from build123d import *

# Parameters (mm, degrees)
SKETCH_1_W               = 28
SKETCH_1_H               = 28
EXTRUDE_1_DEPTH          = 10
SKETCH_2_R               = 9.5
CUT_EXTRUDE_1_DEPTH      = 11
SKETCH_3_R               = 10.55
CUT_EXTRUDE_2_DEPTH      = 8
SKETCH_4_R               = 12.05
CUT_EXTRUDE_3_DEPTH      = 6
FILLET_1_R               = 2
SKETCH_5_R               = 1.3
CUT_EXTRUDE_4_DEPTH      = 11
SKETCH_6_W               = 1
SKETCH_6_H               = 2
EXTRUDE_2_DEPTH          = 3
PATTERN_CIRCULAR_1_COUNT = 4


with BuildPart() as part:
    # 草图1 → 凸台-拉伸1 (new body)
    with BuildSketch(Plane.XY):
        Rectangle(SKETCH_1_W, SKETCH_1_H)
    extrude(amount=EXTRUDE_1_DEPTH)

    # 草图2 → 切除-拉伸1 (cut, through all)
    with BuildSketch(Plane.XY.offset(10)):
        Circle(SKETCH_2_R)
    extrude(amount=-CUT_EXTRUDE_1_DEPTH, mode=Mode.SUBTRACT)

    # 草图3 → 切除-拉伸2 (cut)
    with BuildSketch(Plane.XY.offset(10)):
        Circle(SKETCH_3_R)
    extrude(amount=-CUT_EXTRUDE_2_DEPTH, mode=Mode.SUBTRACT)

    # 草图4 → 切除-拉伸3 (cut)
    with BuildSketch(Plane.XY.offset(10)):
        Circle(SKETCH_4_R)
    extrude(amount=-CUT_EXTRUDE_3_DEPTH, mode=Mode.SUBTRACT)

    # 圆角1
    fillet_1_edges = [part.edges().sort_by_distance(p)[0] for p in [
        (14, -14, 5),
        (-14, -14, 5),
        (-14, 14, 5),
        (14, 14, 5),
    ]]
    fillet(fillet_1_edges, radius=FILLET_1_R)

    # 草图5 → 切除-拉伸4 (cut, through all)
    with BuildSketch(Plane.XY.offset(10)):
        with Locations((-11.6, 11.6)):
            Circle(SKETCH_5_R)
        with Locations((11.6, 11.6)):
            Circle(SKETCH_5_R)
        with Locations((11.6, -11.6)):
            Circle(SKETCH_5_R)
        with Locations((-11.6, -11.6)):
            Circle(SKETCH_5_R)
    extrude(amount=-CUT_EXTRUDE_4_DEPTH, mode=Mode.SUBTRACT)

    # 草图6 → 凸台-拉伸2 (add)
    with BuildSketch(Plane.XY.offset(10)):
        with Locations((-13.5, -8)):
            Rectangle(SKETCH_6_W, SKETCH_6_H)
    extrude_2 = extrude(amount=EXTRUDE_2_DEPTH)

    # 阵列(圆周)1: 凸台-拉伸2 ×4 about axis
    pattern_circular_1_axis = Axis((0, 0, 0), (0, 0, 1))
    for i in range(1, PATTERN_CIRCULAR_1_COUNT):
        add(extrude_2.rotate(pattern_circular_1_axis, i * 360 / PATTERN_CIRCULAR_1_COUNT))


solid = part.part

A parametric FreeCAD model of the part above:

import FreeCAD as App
import Part
import Sketcher
from FreeCAD import Vector
Q = App.Units.Quantity


def edges_at(feature, points):
    """Names of the edges that pass closest to the given points."""
    edges = feature.Shape.Edges
    near = lambda p: min(range(len(edges)), key=lambda i: edges[i].distToShape(Part.Vertex(*p))[0])
    return sorted({f"Edge{near(p) + 1}" for p in points})

doc = App.newDocument("Part")
body = doc.addObject("PartDesign::Body", "Body")

sketch1 = body.newObject("Sketcher::SketchObject", "Sketch")
sketch1.AttachmentSupport = (doc.getObject("XY_Plane"), [""])
sketch1.MapMode = "FlatFace"
sketch1.addGeometry([
    Part.LineSegment(Vector(-14, 14, 0), Vector(-14, -14, 0)),
    Part.LineSegment(Vector(-14, -14, 0), Vector(14, -14, 0)),
    Part.LineSegment(Vector(14, -14, 0), Vector(14, 14, 0)),
    Part.LineSegment(Vector(14, 14, 0), Vector(-14, 14, 0)),
], False)
sketch1.addConstraint([
    Sketcher.Constraint("Coincident", 0, 2, 1, 1),
    Sketcher.Constraint("Coincident", 1, 2, 2, 1),
    Sketcher.Constraint("Coincident", 2, 2, 3, 1),
    Sketcher.Constraint("Coincident", 3, 2, 0, 1),
    Sketcher.Constraint("Vertical", 0),
    Sketcher.Constraint("Horizontal", 1),
    Sketcher.Constraint("Vertical", 2),
    Sketcher.Constraint("Horizontal", 3),
    Sketcher.Constraint("Symmetric", 0, 2, 2, 2, -1, 1),
    Sketcher.Constraint("Equal", 3, 0),
    Sketcher.Constraint("DistanceX", 1, 1, 1, 2, Q("28 mm")),
])
pad1 = body.newObject("PartDesign::Pad", "Pad")
pad1.Profile = sketch1
pad1.Length = 10

sketch2 = body.newObject("Sketcher::SketchObject", "Sketch001")
sketch2.AttachmentSupport = (doc.getObject("XY_Plane"), [""])
sketch2.MapMode = "FlatFace"
sketch2.AttachmentOffset = App.Placement(Vector(0, 0, 10), App.Rotation())
sketch2.addGeometry(Part.Circle(Vector(0, 0, 0), Vector(0, 0, 1), 10), False)
sketch2.addConstraint([
    Sketcher.Constraint("Coincident", 0, 3, -1, 1),
    Sketcher.Constraint("Diameter", 0, Q("19 mm")),
])
pocket1 = body.newObject("PartDesign::Pocket", "Pocket")
pocket1.Profile = sketch2
pocket1.Type = "ThroughAll"

sketch3 = body.newObject("Sketcher::SketchObject", "Sketch002")
sketch3.AttachmentSupport = (doc.getObject("XY_Plane"), [""])
sketch3.MapMode = "FlatFace"
sketch3.AttachmentOffset = App.Placement(Vector(0, 0, 10), App.Rotation())
sketch3.addGeometry(Part.Circle(Vector(0, 0, 0), Vector(0, 0, 1), 11), False)
sketch3.addConstraint([
    Sketcher.Constraint("Coincident", 0, 3, -1, 1),
    Sketcher.Constraint("Diameter", 0, Q("21.1 mm")),
])
pocket2 = body.newObject("PartDesign::Pocket", "Pocket001")
pocket2.Profile = sketch3
pocket2.Length = 8

sketch4 = body.newObject("Sketcher::SketchObject", "Sketch003")
sketch4.AttachmentSupport = (doc.getObject("XY_Plane"), [""])
sketch4.MapMode = "FlatFace"
sketch4.AttachmentOffset = App.Placement(Vector(0, 0, 10), App.Rotation())
sketch4.addGeometry(Part.Circle(Vector(0, 0, 0), Vector(0, 0, 1), 12), False)
sketch4.addConstraint([
    Sketcher.Constraint("Coincident", 0, 3, -1, 1),
    Sketcher.Constraint("Diameter", 0, Q("24.1 mm")),
])
pocket3 = body.newObject("PartDesign::Pocket", "Pocket002")
pocket3.Profile = sketch4
pocket3.Length = 6
doc.recompute()

fillet = body.newObject("PartDesign::Fillet", "Fillet")
fillet.Base = (pocket3, edges_at(pocket3, [
    (14, -14, 5),
    (-14, -14, 5),
    (-14, 14, 5),
    (14, 14, 5),
]))
fillet.Radius = 2

sketch5 = body.newObject("Sketcher::SketchObject", "Sketch004")
sketch5.AttachmentSupport = (doc.getObject("XY_Plane"), [""])
sketch5.MapMode = "FlatFace"
sketch5.AttachmentOffset = App.Placement(Vector(0, 0, 10), App.Rotation())
sketch5.addGeometry([
    Part.Circle(Vector(-11.6, 11.6, 0), Vector(0, 0, 1), 1.3),
    Part.Circle(Vector(11.6, 11.6, 0), Vector(0, 0, 1), 1.3),
    Part.Circle(Vector(11.6, -11.6, 0), Vector(0, 0, 1), 1.3),
    Part.Circle(Vector(-11.6, -11.6, 0), Vector(0, 0, 1), 1.3),
], False)
sketch5.addConstraint([
    Sketcher.Constraint("Equal", 0, 1),
    Sketcher.Constraint("Equal", 1, 2),
    Sketcher.Constraint("Equal", 2, 3),
    Sketcher.Constraint("Symmetric", 0, 3, 2, 3, -1, 1),
    Sketcher.Constraint("Symmetric", 1, 3, 3, 3, -1, 1),
    Sketcher.Constraint("Symmetric", 0, 3, 1, 3, -2),
    Sketcher.Constraint("Diameter", 0, Q("2.6 mm")),
    Sketcher.Constraint("DistanceX", 0, 3, -1, 1, Q("11.6 mm")),
    Sketcher.Constraint("DistanceY", -1, 1, 0, 3, Q("11.6 mm")),
])
pocket4 = body.newObject("PartDesign::Pocket", "Pocket003")
pocket4.Profile = sketch5
pocket4.Type = "ThroughAll"

sketch6 = body.newObject("Sketcher::SketchObject", "Sketch005")
sketch6.AttachmentSupport = (doc.getObject("XY_Plane"), [""])
sketch6.MapMode = "FlatFace"
sketch6.AttachmentOffset = App.Placement(Vector(0, 0, 10), App.Rotation())
sketch6.addGeometry([
    Part.LineSegment(Vector(-14, -7, 0), Vector(-14, -9, 0)),
    Part.LineSegment(Vector(-14, -9, 0), Vector(-13, -9, 0)),
    Part.LineSegment(Vector(-13, -9, 0), Vector(-13, -7, 0)),
    Part.LineSegment(Vector(-13, -7, 0), Vector(-14, -7, 0)),
], False)
sketch6.addConstraint([
    Sketcher.Constraint("Coincident", 0, 2, 1, 1),
    Sketcher.Constraint("Coincident", 1, 2, 2, 1),
    Sketcher.Constraint("Coincident", 2, 2, 3, 1),
    Sketcher.Constraint("Coincident", 3, 2, 0, 1),
    Sketcher.Constraint("Vertical", 0),
    Sketcher.Constraint("Horizontal", 1),
    Sketcher.Constraint("Vertical", 2),
    Sketcher.Constraint("Horizontal", 3),
    Sketcher.Constraint("DistanceX", 1, 1, 1, 2, Q("1 mm")),
    Sketcher.Constraint("DistanceY", 0, 2, 0, 1, Q("2 mm")),
    Sketcher.Constraint("DistanceX", 0, 2, -1, 1, Q("14 mm")),
    Sketcher.Constraint("DistanceY", 0, 2, -1, 1, Q("9 mm")),
])
pad2 = body.newObject("PartDesign::Pad", "Pad001")
pad2.Profile = sketch6
pad2.Length = 3
doc.recompute()

polarpattern = body.newObject("PartDesign::PolarPattern", "PolarPattern")
polarpattern.Originals = [pad2]
polarpattern.Axis = (doc.getObject("Z_Axis"), [""])
polarpattern.Angle = 360
polarpattern.Occurrences = 4
body.Tip = polarpattern

doc.recompute()
